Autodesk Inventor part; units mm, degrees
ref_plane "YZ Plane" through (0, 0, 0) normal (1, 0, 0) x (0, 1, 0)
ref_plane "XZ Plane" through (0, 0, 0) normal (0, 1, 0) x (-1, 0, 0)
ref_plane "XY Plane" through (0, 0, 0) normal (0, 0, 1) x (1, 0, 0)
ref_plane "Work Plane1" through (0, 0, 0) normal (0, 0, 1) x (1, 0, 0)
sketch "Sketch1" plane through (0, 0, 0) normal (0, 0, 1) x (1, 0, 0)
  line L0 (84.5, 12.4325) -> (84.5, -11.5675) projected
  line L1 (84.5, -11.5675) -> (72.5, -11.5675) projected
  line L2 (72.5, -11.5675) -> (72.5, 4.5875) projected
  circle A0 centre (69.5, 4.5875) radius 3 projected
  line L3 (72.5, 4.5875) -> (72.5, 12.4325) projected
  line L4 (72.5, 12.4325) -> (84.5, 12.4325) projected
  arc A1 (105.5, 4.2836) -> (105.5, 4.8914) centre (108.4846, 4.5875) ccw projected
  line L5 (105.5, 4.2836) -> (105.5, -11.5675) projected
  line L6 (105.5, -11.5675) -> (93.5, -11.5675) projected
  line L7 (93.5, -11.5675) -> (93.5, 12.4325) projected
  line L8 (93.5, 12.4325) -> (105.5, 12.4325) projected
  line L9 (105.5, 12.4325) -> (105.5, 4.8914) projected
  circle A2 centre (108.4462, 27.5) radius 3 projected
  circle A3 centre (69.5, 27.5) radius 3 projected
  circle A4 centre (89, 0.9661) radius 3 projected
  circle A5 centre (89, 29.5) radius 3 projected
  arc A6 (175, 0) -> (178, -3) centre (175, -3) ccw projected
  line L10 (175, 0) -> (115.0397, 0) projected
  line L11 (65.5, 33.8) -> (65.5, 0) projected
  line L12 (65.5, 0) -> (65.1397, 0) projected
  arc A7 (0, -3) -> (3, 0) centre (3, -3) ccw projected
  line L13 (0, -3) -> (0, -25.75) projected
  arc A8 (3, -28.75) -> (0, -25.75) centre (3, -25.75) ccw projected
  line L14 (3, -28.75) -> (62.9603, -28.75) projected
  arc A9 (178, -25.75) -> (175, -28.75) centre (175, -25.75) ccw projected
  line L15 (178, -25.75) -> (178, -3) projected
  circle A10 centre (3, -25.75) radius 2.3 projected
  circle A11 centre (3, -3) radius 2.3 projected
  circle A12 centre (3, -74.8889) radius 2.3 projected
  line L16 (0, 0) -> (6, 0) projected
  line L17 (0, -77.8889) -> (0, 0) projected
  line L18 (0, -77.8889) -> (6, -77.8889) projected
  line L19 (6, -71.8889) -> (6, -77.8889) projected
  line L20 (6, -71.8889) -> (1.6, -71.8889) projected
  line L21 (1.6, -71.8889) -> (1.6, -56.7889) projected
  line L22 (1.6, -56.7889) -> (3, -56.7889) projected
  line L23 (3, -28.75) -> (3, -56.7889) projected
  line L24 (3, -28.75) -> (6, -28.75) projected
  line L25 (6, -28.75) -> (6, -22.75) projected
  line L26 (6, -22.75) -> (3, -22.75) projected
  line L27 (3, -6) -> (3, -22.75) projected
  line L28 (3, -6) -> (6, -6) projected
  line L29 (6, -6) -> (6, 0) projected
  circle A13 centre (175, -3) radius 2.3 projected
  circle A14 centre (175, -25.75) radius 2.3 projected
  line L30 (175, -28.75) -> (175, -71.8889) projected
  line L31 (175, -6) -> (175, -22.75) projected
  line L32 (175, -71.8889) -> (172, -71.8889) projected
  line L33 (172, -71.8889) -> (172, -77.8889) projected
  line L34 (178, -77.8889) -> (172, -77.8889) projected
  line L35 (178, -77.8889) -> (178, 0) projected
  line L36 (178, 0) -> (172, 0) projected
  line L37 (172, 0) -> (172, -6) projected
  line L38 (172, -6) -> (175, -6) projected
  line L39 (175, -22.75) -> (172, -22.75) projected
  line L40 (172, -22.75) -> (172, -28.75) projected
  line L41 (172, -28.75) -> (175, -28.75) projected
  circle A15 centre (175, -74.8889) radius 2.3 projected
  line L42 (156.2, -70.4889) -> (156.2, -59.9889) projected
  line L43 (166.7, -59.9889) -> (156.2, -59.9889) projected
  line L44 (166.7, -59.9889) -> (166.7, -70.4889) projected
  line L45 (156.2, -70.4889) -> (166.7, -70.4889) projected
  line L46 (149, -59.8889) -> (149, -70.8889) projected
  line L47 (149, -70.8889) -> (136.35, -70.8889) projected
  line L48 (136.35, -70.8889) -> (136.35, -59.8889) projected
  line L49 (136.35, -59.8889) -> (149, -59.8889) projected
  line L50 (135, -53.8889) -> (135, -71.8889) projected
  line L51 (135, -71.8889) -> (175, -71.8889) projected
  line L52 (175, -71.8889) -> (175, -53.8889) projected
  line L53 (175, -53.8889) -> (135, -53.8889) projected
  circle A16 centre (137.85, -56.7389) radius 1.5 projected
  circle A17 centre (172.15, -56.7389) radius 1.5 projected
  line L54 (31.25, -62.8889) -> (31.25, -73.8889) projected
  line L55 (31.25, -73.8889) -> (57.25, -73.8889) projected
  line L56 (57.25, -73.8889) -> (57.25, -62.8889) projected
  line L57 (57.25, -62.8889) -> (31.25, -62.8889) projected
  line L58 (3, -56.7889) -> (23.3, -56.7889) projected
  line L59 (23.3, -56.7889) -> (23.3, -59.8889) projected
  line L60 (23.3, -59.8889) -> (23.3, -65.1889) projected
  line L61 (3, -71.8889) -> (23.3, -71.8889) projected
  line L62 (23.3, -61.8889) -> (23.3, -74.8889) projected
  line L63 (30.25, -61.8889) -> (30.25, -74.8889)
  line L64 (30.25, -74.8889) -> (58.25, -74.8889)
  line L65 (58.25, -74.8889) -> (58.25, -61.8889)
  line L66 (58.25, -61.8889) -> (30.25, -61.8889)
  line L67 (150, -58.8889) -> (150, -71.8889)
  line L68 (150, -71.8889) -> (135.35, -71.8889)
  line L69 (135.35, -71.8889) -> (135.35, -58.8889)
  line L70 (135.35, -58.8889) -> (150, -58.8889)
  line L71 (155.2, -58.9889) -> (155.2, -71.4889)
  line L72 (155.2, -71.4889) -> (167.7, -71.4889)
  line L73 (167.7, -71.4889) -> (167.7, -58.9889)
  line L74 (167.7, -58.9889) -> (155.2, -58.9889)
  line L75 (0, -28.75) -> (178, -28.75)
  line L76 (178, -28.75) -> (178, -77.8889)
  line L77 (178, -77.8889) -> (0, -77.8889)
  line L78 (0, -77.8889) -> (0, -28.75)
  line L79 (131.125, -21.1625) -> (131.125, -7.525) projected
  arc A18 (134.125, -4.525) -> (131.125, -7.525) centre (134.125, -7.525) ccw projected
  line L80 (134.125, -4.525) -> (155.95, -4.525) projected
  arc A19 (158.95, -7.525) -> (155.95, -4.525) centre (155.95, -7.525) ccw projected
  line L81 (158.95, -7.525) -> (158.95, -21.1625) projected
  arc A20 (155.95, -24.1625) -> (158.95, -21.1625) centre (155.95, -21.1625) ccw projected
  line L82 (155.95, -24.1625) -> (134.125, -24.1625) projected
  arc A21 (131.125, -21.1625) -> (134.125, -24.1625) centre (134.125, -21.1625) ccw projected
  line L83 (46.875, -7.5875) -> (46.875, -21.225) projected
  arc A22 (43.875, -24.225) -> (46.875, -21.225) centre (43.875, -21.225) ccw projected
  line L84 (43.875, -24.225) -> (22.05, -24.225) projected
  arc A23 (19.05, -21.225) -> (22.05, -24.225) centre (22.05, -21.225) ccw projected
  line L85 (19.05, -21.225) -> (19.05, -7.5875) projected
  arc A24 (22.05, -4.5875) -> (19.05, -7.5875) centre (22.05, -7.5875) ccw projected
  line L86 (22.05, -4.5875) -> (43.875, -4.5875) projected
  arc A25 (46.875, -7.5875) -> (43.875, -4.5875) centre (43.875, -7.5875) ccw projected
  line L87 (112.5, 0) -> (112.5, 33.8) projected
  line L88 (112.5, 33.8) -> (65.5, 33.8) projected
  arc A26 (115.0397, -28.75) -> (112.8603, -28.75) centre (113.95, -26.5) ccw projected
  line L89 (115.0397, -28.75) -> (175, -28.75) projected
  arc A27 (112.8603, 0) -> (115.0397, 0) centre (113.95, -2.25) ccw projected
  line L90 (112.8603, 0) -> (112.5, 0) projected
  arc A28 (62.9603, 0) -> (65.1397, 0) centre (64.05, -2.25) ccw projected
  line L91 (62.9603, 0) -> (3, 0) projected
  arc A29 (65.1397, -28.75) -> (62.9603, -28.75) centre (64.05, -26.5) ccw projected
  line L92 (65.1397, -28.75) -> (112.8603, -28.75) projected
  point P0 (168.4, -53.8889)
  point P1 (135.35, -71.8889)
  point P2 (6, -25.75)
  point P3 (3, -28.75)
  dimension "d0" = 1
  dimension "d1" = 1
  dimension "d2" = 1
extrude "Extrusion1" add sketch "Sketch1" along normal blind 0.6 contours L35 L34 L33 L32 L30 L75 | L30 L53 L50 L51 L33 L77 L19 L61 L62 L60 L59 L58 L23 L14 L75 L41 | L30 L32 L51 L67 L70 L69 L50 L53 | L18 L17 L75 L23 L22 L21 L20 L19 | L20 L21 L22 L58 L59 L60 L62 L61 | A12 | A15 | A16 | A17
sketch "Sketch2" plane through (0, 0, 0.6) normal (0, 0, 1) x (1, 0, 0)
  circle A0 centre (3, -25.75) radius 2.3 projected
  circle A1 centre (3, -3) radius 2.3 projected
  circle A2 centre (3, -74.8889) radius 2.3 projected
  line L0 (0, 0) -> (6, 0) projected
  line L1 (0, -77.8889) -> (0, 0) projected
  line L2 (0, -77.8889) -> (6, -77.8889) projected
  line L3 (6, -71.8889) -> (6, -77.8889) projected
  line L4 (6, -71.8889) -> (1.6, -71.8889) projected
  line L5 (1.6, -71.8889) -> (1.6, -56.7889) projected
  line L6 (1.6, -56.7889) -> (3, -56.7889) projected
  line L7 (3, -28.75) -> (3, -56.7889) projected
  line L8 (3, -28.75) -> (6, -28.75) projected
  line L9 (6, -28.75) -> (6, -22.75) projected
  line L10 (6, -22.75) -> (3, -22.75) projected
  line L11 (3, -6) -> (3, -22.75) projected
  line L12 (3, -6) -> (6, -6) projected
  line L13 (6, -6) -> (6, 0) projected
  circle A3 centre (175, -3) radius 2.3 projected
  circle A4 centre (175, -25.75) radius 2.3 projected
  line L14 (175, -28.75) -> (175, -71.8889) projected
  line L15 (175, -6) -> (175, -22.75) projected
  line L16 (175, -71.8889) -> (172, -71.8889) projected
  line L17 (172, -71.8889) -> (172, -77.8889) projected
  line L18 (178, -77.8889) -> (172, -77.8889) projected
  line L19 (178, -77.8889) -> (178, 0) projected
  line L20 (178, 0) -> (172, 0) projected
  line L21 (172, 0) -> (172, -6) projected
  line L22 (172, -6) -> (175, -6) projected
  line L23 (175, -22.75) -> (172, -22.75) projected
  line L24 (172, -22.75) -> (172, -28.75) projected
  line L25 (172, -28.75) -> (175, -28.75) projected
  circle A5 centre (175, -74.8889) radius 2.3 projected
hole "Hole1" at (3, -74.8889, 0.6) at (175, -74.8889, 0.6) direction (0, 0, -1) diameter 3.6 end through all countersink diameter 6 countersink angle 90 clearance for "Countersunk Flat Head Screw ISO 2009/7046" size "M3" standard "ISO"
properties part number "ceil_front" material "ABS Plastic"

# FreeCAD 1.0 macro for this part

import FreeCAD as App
import Part
import Sketcher
from FreeCAD import Vector


def add_polygon(sketch, points):
    """Adds a closed chain of lines whose ends are joined by coincident constraints."""
    first, n = sketch.GeometryCount, len(points)
    for a, b in zip(points, points[1:] + points[:1]):
        sketch.addGeometry(Part.LineSegment(App.Vector(*a, 0), App.Vector(*b, 0)), False)
    for i in range(n):
        sketch.addConstraint(Sketcher.Constraint("Coincident", first + i, 2, first + (i + 1) % n, 1))

doc = App.newDocument("Part")
params = doc.addObject("Spreadsheet::Sheet", "Params")
for row, (alias, value) in enumerate([
    ("sketch1_width", "178 mm"),
    ("sketch1_width2", "28 mm"),
    ("sketch1_height", "13 mm"),
    ("sketch1_width3", "12.5 mm"),
    ("sketch1_width4", "14.65 mm"),
    ("pad1_length", "0.6 mm"),
    ("sketch2_diameter", "3.6 mm"),
    ("hole_diameter", "3.6 mm"),
    ("hole_csink_diameter", "6 mm"),
], start=1):
    params.set(f"A{row}", alias)
    params.set(f"B{row}", "=" + value)
    params.setAlias(f"B{row}", alias)

body = doc.addObject("PartDesign::Body", "Body")

# Sketch on XY plane
sketch1 = body.newObject("Sketcher::SketchObject", "Sketch")
sketch1.AttachmentSupport = (doc.getObject("XY_Plane"), [""])
sketch1.MapMode = "FlatFace"
add_polygon(sketch1, [(178, -77.8889), (178, -28.75), (0, -28.75), (0, -77.8889)])  # lines 0-3
add_polygon(sketch1, [(58.25, -61.8889), (58.25, -74.8889), (30.25, -74.8889), (30.25, -61.8889)])  # lines 4-7
add_polygon(sketch1, [(150, -71.8889), (135.35, -71.8889), (135.35, -58.8889), (150, -58.8889)])  # lines 8-11
add_polygon(sketch1, [(155.2, -71.4889), (155.2, -58.9889), (167.7, -58.9889), (167.7, -71.4889)])  # lines 12-15
sketch1.addConstraint([
    Sketcher.Constraint("Vertical", 0),
    Sketcher.Constraint("Horizontal", 1),
    Sketcher.Constraint("Vertical", 2),
    Sketcher.Constraint("Horizontal", 3),
    Sketcher.Constraint("Vertical", 4),
    Sketcher.Constraint("Horizontal", 5),
    Sketcher.Constraint("Vertical", 6),
    Sketcher.Constraint("Horizontal", 7),
    Sketcher.Constraint("Horizontal", 8),
    Sketcher.Constraint("Vertical", 9),
    Sketcher.Constraint("Horizontal", 10),
    Sketcher.Constraint("Vertical", 11),
    Sketcher.Constraint("Vertical", 12),
    Sketcher.Constraint("Horizontal", 13),
    Sketcher.Constraint("Vertical", 14),
    Sketcher.Constraint("Horizontal", 15),
    Sketcher.Constraint("PointOnObject", 1, 2, -2),
    Sketcher.Constraint("Equal", 6, 9),
    Sketcher.Constraint("Equal", 15, 12),
    Sketcher.Constraint("DistanceX", 1, 2, 1, 1, 178.0),
    Sketcher.Constraint("DistanceX", 5, 2, 5, 1, 28.0),
    Sketcher.Constraint("DistanceY", 4, 2, 4, 1, 13.0),
    Sketcher.Constraint("DistanceX", 13, 1, 13, 2, 12.5),
    Sketcher.Constraint("DistanceX", -1, 1, 10, 2, 150.0),
    Sketcher.Constraint("DistanceY", 2, 2, 4, 2, 3.0),
    Sketcher.Constraint("DistanceY", 3, 2, 8, 2, 6.0),
    Sketcher.Constraint("DistanceX", 8, 2, 8, 1, 14.65),
    Sketcher.Constraint("DistanceX", -1, 1, 12, 2, 155.2),
    Sketcher.Constraint("DistanceX", 4, 2, 8, 2, 77.1),
    Sketcher.Constraint("DistanceY", 12, 2, 10, 2, 0.1),
    Sketcher.Constraint("DistanceY", 0, 1, 0, 2, 49.139),
    Sketcher.Constraint("DistanceY", 0, 2, -1, 1, 28.75),
])
sketch1.setExpression("Constraints[35]", "Params.sketch1_width")
sketch1.setExpression("Constraints[36]", "Params.sketch1_width2")
sketch1.setExpression("Constraints[37]", "Params.sketch1_height")
sketch1.setExpression("Constraints[38]", "Params.sketch1_width3")
sketch1.setExpression("Constraints[42]", "Params.sketch1_width4")
pad1 = body.newObject("PartDesign::Pad", "Pad")
pad1.Profile = sketch1
pad1.setExpression("Length", "Params.pad1_length")

# Sketch on XY plane
sketch2 = body.newObject("Sketcher::SketchObject", "Sketch001")
sketch2.AttachmentSupport = (doc.getObject("XY_Plane"), [""])
sketch2.MapMode = "FlatFace"
sketch2.AttachmentOffset = App.Placement(Vector(0, 0, 0.6), App.Rotation())
sketch2.addGeometry([
    Part.Circle(Vector(3, -74.8889, 0), Vector(0, 0, 1), 1.8),
    Part.Circle(Vector(175, -74.8889, 0), Vector(0, 0, 1), 1.8),
], False)
sketch2.addConstraint([
    Sketcher.Constraint("Equal", 0, 1),
    Sketcher.Constraint("Horizontal", 0, 3, 1, 3),
    Sketcher.Constraint("Diameter", 0, 3.6),
    Sketcher.Constraint("DistanceX", -1, 1, 0, 3, 3.0),
    Sketcher.Constraint("DistanceX", -1, 1, 1, 3, 175.0),
    Sketcher.Constraint("DistanceY", 0, 3, -1, 1, 74.889),
])
sketch2.setExpression("Constraints[2]", "Params.sketch2_diameter")
doc.recompute()
hole = body.newObject("PartDesign::Hole", "Hole")
hole.Profile = sketch2
hole.ThreadType = "None"
hole.setExpression("Diameter", "Params.hole_diameter")
hole.DepthType = "ThroughAll"
hole.HoleCutType = "Countersink"
hole.setExpression("HoleCutDiameter", "Params.hole_csink_diameter")
hole.HoleCutCountersinkAngle = 90

doc.recompute()
